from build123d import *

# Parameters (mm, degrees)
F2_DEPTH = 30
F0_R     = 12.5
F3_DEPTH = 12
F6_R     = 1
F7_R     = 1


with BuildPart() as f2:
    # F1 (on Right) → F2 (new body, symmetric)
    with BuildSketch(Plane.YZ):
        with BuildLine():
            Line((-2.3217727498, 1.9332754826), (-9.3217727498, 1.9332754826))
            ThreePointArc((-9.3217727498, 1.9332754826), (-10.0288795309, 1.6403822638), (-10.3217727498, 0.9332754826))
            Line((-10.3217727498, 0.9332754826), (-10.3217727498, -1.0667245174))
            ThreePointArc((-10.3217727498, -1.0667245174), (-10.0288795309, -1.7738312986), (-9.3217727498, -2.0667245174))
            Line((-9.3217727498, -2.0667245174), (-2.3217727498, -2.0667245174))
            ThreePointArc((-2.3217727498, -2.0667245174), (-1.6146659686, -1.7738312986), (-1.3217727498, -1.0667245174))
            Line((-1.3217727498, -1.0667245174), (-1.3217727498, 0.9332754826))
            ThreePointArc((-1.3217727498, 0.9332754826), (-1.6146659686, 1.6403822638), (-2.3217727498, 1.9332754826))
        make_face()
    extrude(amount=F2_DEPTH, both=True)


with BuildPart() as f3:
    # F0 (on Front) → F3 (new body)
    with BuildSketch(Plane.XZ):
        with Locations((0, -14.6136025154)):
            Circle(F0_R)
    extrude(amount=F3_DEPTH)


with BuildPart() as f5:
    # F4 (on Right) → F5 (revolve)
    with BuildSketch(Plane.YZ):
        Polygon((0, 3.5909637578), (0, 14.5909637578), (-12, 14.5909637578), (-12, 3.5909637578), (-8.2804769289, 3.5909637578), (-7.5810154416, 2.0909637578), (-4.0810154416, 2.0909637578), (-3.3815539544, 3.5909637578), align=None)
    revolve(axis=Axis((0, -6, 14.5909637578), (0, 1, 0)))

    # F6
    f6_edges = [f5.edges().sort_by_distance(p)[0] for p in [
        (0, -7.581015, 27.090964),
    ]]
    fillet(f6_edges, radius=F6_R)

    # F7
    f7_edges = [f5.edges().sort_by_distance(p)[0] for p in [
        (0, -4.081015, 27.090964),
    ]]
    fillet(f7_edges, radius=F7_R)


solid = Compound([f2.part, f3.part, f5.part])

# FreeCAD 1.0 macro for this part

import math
import FreeCAD as App
import Part
import Sketcher
Q = App.Units.Quantity


def edges_at(feature, points):
    """Names of the edges that pass closest to the given points."""
    edges = feature.Shape.Edges
    near = lambda p: min(range(len(edges)), key=lambda i: edges[i].distToShape(Part.Vertex(*p))[0])
    return sorted({f"Edge{near(p) + 1}" for p in points})


def add_polygon(sketch, points):
    """Adds a closed chain of lines whose ends are joined by coincident constraints."""
    first, n = sketch.GeometryCount, len(points)
    for a, b in zip(points, points[1:] + points[:1]):
        sketch.addGeometry(Part.LineSegment(App.Vector(*a, 0), App.Vector(*b, 0)), False)
    for i in range(n):
        sketch.addConstraint(Sketcher.Constraint("Coincident", first + i, 2, first + (i + 1) % n, 1))

doc = App.newDocument("Part")
params = doc.addObject("Spreadsheet::Sheet", "Params")
for row, (alias, value) in enumerate([
    ("sketch1_radius", "1 mm"),
    ("sketch1_width", "7 mm"),
    ("sketch1_height", "2 mm"),
    ("pad1_length", "60 mm"),
    ("sketch2_diameter", "25 mm"),
    ("pad2_length", "12 mm"),
    ("sketch3_width", "12 mm"),
    ("sketch3_height", "11 mm"),
    ("sketch3_width2", "3.5 mm"),
    ("revolution_angle", "360 deg"),
    ("fillet_radius", "1 mm"),
    ("fillet2_radius", "1 mm"),
], start=1):
    params.set(f"A{row}", alias)
    params.set(f"B{row}", "=" + value)
    params.setAlias(f"B{row}", alias)

body = doc.addObject("PartDesign::Body", "Body")

sketch1 = body.newObject("Sketcher::SketchObject", "Sketch")
sketch1.AttachmentSupport = (doc.getObject("YZ_Plane"), [""])
sketch1.MapMode = "FlatFace"
sketch1.addGeometry(Part.LineSegment(App.Vector(-2.3, 1.9, 0), App.Vector(-9.3, 1.9, 0)), False)
sketch1.addGeometry(Part.ArcOfCircle(Part.Circle(App.Vector(-9.3, 0.9, 0), App.Vector(0, 0, 1), 1), math.radians(90), math.radians(180)), False)
sketch1.addGeometry(Part.LineSegment(App.Vector(-10.3, 0.9, 0), App.Vector(-10.3, -1.1, 0)), False)
sketch1.addGeometry(Part.ArcOfCircle(Part.Circle(App.Vector(-9.3, -1.1, 0), App.Vector(0, 0, 1), 1), math.radians(180), math.radians(270)), False)
sketch1.addGeometry(Part.LineSegment(App.Vector(-9.3, -2.1, 0), App.Vector(-2.3, -2.1, 0)), False)
sketch1.addGeometry(Part.ArcOfCircle(Part.Circle(App.Vector(-2.3, -1.1, 0), App.Vector(0, 0, 1), 1), math.radians(-90), math.radians(0)), False)
sketch1.addGeometry(Part.LineSegment(App.Vector(-1.3, -1.1, 0), App.Vector(-1.3, 0.9, 0)), False)
sketch1.addGeometry(Part.ArcOfCircle(Part.Circle(App.Vector(-2.3, 0.9, 0), App.Vector(0, 0, 1), 1), math.radians(0), math.radians(90)), False)
sketch1.addConstraint(Sketcher.Constraint("Tangent", 0, 2, 1, 1))
sketch1.addConstraint(Sketcher.Constraint("Tangent", 1, 2, 2, 1))
sketch1.addConstraint(Sketcher.Constraint("Tangent", 2, 2, 3, 1))
sketch1.addConstraint(Sketcher.Constraint("Tangent", 3, 2, 4, 1))
sketch1.addConstraint(Sketcher.Constraint("Tangent", 4, 2, 5, 1))
sketch1.addConstraint(Sketcher.Constraint("Tangent", 5, 2, 6, 1))
sketch1.addConstraint(Sketcher.Constraint("Tangent", 6, 2, 7, 1))
sketch1.addConstraint(Sketcher.Constraint("Tangent", 7, 2, 0, 1))
sketch1.addConstraint(Sketcher.Constraint("Horizontal", 0))
sketch1.addConstraint(Sketcher.Constraint("Vertical", 2))
sketch1.addConstraint(Sketcher.Constraint("Horizontal", 4))
sketch1.addConstraint(Sketcher.Constraint("Vertical", 6))
sketch1.addConstraint(Sketcher.Constraint("Equal", 1, 3))
sketch1.addConstraint(Sketcher.Constraint("Equal", 3, 5))
sketch1.addConstraint(Sketcher.Constraint("Equal", 5, 7))
sketch1.addConstraint(Sketcher.Constraint("Radius", 1, Q("1 mm")))
sketch1.addConstraint(Sketcher.Constraint("DistanceX", 0, 2, 0, 1, Q("7 mm")))
sketch1.addConstraint(Sketcher.Constraint("DistanceY", 2, 2, 2, 1, Q("2 mm")))
sketch1.addConstraint(Sketcher.Constraint("DistanceX", 1, 3, -1, 1, Q("9.321773 mm")))
sketch1.addConstraint(Sketcher.Constraint("DistanceY", -1, 1, 1, 3, Q("0.933275 mm")))
sketch1.setExpression("Constraints[15]", "Params.sketch1_radius")
sketch1.setExpression("Constraints[16]", "Params.sketch1_width")
sketch1.setExpression("Constraints[17]", "Params.sketch1_height")
pad1 = body.newObject("PartDesign::Pad", "Pad")
pad1.Profile = sketch1
pad1.setExpression("Length", "Params.pad1_length")
pad1.Midplane = True
body2 = doc.addObject("PartDesign::Body", "Body001")

sketch2 = body2.newObject("Sketcher::SketchObject", "Sketch001")
sketch2.AttachmentSupport = (doc.getObject("XZ_Plane001"), [""])
sketch2.MapMode = "FlatFace"
sketch2.addGeometry(Part.Circle(App.Vector(0, -15, 0), App.Vector(0, 0, 1), 12), False)
sketch2.addConstraint(Sketcher.Constraint("PointOnObject", 0, 3, -2))
sketch2.addConstraint(Sketcher.Constraint("Diameter", 0, Q("25 mm")))
sketch2.addConstraint(Sketcher.Constraint("DistanceY", 0, 3, -1, 1, Q("14.613603 mm")))
sketch2.setExpression("Constraints[1]", "Params.sketch2_diameter")
pad2 = body2.newObject("PartDesign::Pad", "Pad001")
pad2.Profile = sketch2
pad2.setExpression("Length", "Params.pad2_length")
body3 = doc.addObject("PartDesign::Body", "Body002")

sketch3 = body3.newObject("Sketcher::SketchObject", "Sketch002")
sketch3.AttachmentSupport = (doc.getObject("YZ_Plane002"), [""])
sketch3.MapMode = "FlatFace"
add_polygon(sketch3, [(0, 3.6), (0, 14.6), (-12, 14.6), (-12, 3.6), (-8.3, 3.6), (-7.6, 2.1), (-4.1, 2.1), (-3.4, 3.6)])
sketch3.addGeometry(Part.LineSegment(App.Vector(-12, 14.6, 0), App.Vector(0, 14.6, 0)), True)
sketch3.addConstraint(Sketcher.Constraint("Vertical", 0))
sketch3.addConstraint(Sketcher.Constraint("Horizontal", 1))
sketch3.addConstraint(Sketcher.Constraint("Vertical", 2))
sketch3.addConstraint(Sketcher.Constraint("Horizontal", 3))
sketch3.addConstraint(Sketcher.Constraint("Horizontal", 5))
sketch3.addConstraint(Sketcher.Constraint("Horizontal", 7))
sketch3.addConstraint(Sketcher.Constraint("Horizontal", 8))
sketch3.addConstraint(Sketcher.Constraint("Coincident", 8, 1, 1, 2))
sketch3.addConstraint(Sketcher.Constraint("PointOnObject", 0, 2, -2))
sketch3.addConstraint(Sketcher.Constraint("PointOnObject", 8, 2, -2))
sketch3.addConstraint(Sketcher.Constraint("Horizontal", 3, 2, 6, 2))
sketch3.addConstraint(Sketcher.Constraint("Equal", 4, 6))
sketch3.addConstraint(Sketcher.Constraint("DistanceX", 1, 2, 1, 1, Q("12 mm")))
sketch3.addConstraint(Sketcher.Constraint("DistanceY", 0, 1, 0, 2, Q("11 mm")))
sketch3.addConstraint(Sketcher.Constraint("Angle", 4, Q("-65 deg")))
sketch3.addConstraint(Sketcher.Constraint("DistanceX", 5, 1, 5, 2, Q("3.5 mm")))
sketch3.addConstraint(Sketcher.Constraint("DistanceY", 4, 2, 3, 2, Q("1.5 mm")))
sketch3.addConstraint(Sketcher.Constraint("DistanceX", 3, 1, 3, 2, Q("3.719523 mm")))
sketch3.addConstraint(Sketcher.Constraint("DistanceY", -1, 1, 0, 2, Q("14.590964 mm")))
sketch3.setExpression("Constraints[20]", "Params.sketch3_width")
sketch3.setExpression("Constraints[21]", "Params.sketch3_height")
sketch3.setExpression("Constraints[23]", "Params.sketch3_width2")
revolution = body3.newObject("PartDesign::Revolution", "Revolution")
revolution.Profile = sketch3
revolution.ReferenceAxis = (sketch3, ["Axis0"])
revolution.setExpression("Angle", "Params.revolution_angle")
doc.recompute()

fillet = body3.newObject("PartDesign::Fillet", "Fillet")
fillet.Base = (revolution, edges_at(revolution, [(0, -7.581, 27.091)]))
fillet.setExpression("Radius", "Params.fillet_radius")
doc.recompute()

fillet2 = body3.newObject("PartDesign::Fillet", "Fillet001")
fillet2.Base = (fillet, edges_at(fillet, [(0, -4.081, 27.091)]))
fillet2.setExpression("Radius", "Params.fillet2_radius")

doc.recompute()
